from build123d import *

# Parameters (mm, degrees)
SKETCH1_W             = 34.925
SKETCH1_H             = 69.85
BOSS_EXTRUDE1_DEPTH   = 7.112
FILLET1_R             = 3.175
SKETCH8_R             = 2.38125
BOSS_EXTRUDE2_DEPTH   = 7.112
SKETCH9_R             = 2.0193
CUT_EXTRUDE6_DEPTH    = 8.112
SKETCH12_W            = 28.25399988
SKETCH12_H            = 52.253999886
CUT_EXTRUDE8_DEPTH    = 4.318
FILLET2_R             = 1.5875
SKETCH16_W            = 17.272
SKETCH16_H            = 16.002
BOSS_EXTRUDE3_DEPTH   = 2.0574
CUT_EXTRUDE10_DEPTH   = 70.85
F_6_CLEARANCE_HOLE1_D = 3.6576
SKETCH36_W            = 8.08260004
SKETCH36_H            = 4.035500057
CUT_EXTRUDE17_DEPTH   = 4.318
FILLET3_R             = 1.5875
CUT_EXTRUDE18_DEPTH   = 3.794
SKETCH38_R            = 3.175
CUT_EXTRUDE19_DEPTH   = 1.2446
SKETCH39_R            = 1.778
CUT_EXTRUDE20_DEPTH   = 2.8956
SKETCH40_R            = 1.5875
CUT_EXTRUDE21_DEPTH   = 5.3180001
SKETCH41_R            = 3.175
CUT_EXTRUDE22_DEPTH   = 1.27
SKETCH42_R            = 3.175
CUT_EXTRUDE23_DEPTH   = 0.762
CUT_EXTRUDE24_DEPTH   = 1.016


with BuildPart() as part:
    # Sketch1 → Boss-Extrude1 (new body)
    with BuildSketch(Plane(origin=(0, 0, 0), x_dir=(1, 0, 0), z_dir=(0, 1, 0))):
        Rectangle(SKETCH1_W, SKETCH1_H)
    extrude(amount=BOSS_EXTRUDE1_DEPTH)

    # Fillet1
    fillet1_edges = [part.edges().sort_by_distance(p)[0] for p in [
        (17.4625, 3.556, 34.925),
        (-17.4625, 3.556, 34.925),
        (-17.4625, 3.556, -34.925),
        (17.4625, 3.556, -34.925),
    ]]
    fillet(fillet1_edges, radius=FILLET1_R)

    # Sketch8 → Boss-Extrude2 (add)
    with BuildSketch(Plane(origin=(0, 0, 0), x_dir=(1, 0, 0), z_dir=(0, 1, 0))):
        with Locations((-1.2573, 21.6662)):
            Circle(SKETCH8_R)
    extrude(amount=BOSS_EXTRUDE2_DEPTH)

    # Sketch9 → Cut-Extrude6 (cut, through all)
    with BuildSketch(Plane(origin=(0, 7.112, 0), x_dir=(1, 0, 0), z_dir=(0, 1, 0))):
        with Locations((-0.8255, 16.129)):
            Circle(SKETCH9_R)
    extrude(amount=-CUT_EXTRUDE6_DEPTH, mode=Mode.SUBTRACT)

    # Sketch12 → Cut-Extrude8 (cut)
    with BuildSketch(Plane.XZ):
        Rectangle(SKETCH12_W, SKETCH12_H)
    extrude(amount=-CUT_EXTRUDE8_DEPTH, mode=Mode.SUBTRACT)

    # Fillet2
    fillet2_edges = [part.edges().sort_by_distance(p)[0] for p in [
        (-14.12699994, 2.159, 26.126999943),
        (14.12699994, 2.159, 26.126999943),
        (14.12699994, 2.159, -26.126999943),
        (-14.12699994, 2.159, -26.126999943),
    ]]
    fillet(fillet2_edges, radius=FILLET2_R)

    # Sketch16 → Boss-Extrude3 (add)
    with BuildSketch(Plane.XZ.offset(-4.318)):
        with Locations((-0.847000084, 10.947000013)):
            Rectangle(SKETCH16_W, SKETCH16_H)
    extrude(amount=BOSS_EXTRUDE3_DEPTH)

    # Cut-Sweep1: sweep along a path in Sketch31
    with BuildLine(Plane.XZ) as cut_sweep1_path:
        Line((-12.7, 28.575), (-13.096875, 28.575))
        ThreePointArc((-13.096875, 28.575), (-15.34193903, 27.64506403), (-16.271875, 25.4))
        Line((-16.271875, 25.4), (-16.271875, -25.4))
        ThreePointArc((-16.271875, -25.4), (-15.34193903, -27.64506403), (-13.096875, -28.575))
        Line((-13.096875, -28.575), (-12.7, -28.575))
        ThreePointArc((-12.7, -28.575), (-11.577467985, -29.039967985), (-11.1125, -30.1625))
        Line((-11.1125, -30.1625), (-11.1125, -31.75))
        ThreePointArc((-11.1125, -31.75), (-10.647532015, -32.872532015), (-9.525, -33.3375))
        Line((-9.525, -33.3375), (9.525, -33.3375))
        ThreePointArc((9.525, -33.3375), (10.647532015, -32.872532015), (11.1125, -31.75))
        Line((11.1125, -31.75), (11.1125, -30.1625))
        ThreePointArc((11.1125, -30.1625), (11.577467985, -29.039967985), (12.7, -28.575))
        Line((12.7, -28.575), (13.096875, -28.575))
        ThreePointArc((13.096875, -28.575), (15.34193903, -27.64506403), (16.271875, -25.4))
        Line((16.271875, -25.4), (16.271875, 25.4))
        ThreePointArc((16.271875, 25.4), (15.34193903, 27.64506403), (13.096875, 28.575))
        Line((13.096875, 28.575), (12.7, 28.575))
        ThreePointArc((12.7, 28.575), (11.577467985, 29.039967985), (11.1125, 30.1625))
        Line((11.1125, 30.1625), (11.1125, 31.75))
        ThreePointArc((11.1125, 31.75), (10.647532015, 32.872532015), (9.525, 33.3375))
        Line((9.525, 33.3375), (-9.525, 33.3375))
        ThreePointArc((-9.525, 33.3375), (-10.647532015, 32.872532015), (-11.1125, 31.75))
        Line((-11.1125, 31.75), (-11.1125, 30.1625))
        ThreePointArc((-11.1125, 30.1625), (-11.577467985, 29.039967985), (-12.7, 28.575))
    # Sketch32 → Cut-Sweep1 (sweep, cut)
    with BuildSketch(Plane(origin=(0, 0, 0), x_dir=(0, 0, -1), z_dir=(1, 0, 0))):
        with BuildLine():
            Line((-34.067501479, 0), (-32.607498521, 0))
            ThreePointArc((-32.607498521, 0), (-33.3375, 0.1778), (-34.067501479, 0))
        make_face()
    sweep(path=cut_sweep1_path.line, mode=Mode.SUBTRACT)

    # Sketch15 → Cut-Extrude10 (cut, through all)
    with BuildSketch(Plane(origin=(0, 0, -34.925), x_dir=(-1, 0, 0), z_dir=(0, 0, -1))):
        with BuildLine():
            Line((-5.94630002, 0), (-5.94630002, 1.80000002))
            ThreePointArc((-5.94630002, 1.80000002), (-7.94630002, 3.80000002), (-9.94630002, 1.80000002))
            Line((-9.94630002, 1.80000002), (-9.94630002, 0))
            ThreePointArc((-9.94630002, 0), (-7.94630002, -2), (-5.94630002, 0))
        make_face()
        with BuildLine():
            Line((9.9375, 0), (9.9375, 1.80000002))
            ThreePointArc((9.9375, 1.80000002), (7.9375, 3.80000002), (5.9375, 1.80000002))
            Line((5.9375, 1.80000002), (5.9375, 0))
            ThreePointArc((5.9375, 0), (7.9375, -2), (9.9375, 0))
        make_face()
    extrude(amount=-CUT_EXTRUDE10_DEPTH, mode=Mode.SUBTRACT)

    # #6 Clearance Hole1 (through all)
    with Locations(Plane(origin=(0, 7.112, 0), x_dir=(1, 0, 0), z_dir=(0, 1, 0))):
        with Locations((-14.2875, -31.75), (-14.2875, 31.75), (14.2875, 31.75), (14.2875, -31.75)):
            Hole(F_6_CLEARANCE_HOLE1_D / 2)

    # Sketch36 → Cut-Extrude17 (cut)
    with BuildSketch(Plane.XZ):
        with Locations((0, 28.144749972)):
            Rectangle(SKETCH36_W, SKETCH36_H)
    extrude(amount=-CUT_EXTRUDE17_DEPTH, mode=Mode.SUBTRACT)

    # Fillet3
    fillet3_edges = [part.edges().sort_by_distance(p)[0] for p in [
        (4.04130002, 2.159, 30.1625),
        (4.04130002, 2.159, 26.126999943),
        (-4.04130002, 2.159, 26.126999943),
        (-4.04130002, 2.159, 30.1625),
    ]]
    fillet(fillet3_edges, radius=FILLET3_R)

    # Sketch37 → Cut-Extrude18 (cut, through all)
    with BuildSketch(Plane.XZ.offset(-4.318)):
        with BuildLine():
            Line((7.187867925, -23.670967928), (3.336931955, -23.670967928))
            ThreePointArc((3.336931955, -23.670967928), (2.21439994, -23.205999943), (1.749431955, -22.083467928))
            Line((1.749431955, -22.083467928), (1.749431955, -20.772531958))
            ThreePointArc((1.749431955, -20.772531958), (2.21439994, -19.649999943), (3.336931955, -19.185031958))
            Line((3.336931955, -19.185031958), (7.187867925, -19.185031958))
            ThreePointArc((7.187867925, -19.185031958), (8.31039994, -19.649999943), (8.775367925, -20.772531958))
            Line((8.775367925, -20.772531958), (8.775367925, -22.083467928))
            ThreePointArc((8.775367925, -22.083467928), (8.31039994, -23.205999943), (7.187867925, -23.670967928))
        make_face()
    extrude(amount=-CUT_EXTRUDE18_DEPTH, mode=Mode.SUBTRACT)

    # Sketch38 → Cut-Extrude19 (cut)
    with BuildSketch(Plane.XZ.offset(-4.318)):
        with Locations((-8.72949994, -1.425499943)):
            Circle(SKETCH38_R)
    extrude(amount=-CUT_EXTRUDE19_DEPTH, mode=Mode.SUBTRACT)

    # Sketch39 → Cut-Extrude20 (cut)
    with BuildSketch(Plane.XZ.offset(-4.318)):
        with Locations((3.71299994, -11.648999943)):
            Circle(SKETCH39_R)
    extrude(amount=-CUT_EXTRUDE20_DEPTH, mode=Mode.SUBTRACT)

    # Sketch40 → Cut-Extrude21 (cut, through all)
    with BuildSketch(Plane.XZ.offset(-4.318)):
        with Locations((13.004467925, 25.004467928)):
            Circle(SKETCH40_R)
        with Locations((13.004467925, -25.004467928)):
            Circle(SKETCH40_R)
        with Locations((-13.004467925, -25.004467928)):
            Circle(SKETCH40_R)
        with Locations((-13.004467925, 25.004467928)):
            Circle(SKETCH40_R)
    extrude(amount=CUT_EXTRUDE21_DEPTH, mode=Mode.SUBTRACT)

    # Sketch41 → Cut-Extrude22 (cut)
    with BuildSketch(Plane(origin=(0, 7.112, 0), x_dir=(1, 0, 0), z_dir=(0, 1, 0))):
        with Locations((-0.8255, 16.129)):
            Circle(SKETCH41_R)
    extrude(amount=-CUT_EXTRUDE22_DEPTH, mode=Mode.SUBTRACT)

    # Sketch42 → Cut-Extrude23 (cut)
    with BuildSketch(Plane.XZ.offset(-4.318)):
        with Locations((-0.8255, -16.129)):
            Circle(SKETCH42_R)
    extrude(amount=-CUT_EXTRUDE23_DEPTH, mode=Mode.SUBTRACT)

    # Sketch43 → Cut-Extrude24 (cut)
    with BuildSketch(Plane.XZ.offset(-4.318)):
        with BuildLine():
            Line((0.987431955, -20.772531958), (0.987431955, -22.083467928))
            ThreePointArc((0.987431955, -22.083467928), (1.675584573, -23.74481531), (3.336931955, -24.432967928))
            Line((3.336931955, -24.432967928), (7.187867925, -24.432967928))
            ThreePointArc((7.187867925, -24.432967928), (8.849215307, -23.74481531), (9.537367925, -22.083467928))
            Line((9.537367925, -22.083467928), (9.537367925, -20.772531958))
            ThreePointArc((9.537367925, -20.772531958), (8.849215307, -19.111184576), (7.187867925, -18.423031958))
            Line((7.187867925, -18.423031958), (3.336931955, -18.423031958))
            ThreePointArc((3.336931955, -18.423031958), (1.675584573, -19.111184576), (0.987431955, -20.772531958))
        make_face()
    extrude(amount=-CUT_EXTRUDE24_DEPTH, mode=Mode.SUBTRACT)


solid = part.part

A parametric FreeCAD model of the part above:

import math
import FreeCAD as App
import Part
import Sketcher

V = App.Vector
Q = App.Units.Quantity


def edges_at(feature, points):
    """Names of the edges that pass closest to the given points."""
    edges = feature.Shape.Edges
    near = lambda p: min(range(len(edges)), key=lambda i: edges[i].distToShape(Part.Vertex(*p))[0])
    return sorted({f"Edge{near(p) + 1}" for p in points})

doc = App.newDocument("Part")
params = doc.addObject("Spreadsheet::Sheet", "Params")
for row, (alias, value) in enumerate([
    ("sketch1_height", "2.75 in"),
    ("sketch1_width", "1.375 in"),
    ("pad1_length", "0.28 in"),
    ("fillet_radius", "0.125 in"),
    ("sketch2_diameter", "0.1875 in"),
    ("pad2_length", "0.28 in"),
    ("sketch3_diameter", "0.159 in"),
    ("pocket2_length", "0.17 in"),
    ("fillet2_radius", "0.0625 in"),
    ("sketch5_width", "0.68 in"),
    ("sketch5_height", "0.63 in"),
    ("pad3_length", "0.081 in"),
    ("sketch6_radius", "0.0625 in"),
    ("sketch7_height", "2 in"),
    ("sketch7_radius", "0.125 in"),
    ("sketch7_radius2", "0.0625 in"),
    ("sketch7_width", "0.015625 in"),
    ("sketch7_height2", "0.0625 in"),
    ("sketch9_diameter", "0.144 in"),
    ("hole_diameter", "0.144 in"),
    ("pocket4_length", "0.17 in"),
    ("fillet3_radius", "0.0625 in"),
    ("sketch11_radius", "0.0625 in"),
    ("sketch12_diameter", "0.25 in"),
    ("pocket6_length", "0.049 in"),
    ("sketch13_diameter", "0.14 in"),
    ("pocket7_length", "0.114 in"),
    ("sketch14_diameter", "0.125 in"),
    ("sketch15_diameter", "0.25 in"),
    ("pocket9_length", "0.05 in"),
    ("sketch16_diameter", "0.25 in"),
    ("pocket10_length", "0.03 in"),
    ("pocket11_length", "0.04 in"),
], start=1):
    params.set(f"A{row}", alias)
    params.set(f"B{row}", "=" + value)
    params.setAlias(f"B{row}", alias)

body = doc.addObject("PartDesign::Body", "Body")

sketch1 = body.newObject("Sketcher::SketchObject", "Sketch")
sketch1.AttachmentSupport = (doc.getObject("XZ_Plane"), [""])
sketch1.MapMode = "FlatFace"
sketch1.addGeometry([
    Part.LineSegment(V(-17.4625, -34.925, 0), V(-17.4625, 34.925, 0)),
    Part.LineSegment(V(-17.4625, 34.925, 0), V(17.4625, 34.925, 0)),
    Part.LineSegment(V(17.4625, 34.925, 0), V(17.4625, -34.925, 0)),
    Part.LineSegment(V(17.4625, -34.925, 0), V(-17.4625, -34.925, 0)),
], False)
sketch1.addConstraint([
    Sketcher.Constraint("Coincident", 0, 2, 1, 1),
    Sketcher.Constraint("Coincident", 1, 2, 2, 1),
    Sketcher.Constraint("Coincident", 2, 2, 3, 1),
    Sketcher.Constraint("Coincident", 3, 2, 0, 1),
    Sketcher.Constraint("Vertical", 0),
    Sketcher.Constraint("Horizontal", 1),
    Sketcher.Constraint("Vertical", 2),
    Sketcher.Constraint("Horizontal", 3),
    Sketcher.Constraint("Symmetric", 0, 2, 2, 2, -1, 1),
    Sketcher.Constraint("DistanceY", 0, 1, 0, 2, Q("2.75 in")),
    Sketcher.Constraint("DistanceX", 1, 1, 1, 2, Q("1.375 in")),
])
sketch1.setExpression("Constraints[9]", "Params.sketch1_height")
sketch1.setExpression("Constraints[10]", "Params.sketch1_width")
pad1 = body.newObject("PartDesign::Pad", "Pad")
pad1.Profile = sketch1
pad1.setExpression("Length", "Params.pad1_length")
pad1.Reversed = True
doc.recompute()

fillet = body.newObject("PartDesign::Fillet", "Fillet")
fillet.Base = (pad1, edges_at(pad1, [
    (17.462, 3.556, 34.925),
    (-17.462, 3.556, 34.925),
    (-17.462, 3.556, -34.925),
    (17.462, 3.556, -34.925),
]))
fillet.setExpression("Radius", "Params.fillet_radius")

sketch2 = body.newObject("Sketcher::SketchObject", "Sketch001")
sketch2.AttachmentSupport = (doc.getObject("XZ_Plane"), [""])
sketch2.MapMode = "FlatFace"
sketch2.addGeometry(Part.Circle(V(-1.2573, -21.6662, 0), V(0, 0, 1), 2.38125), False)
sketch2.addConstraint([
    Sketcher.Constraint("Diameter", 0, Q("0.1875 in")),
    Sketcher.Constraint("DistanceY", 0, 3, -1, 1, Q("0.853 in")),
    Sketcher.Constraint("DistanceX", 0, 3, -1, 1, Q("0.0495 in")),
])
sketch2.setExpression("Constraints[0]", "Params.sketch2_diameter")
pad2 = body.newObject("PartDesign::Pad", "Pad001")
pad2.Profile = sketch2
pad2.setExpression("Length", "Params.pad2_length")
pad2.Reversed = True

sketch3 = body.newObject("Sketcher::SketchObject", "Sketch002")
sketch3.AttachmentSupport = (doc.getObject("XZ_Plane"), [""])
sketch3.MapMode = "FlatFace"
sketch3.AttachmentOffset = App.Placement(V(0, 0, -0.28 * 25.4), App.Rotation())
sketch3.addGeometry(Part.Circle(V(-0.8255, -16.129, 0), V(0, 0, 1), 2.0193), False)
sketch3.addConstraint([
    Sketcher.Constraint("Diameter", 0, Q("0.159 in")),
    Sketcher.Constraint("DistanceY", 0, 3, -1, 1, Q("0.635 in")),
    Sketcher.Constraint("DistanceX", 0, 3, -1, 1, Q("0.0325 in")),
])
sketch3.setExpression("Constraints[0]", "Params.sketch3_diameter")
pocket1 = body.newObject("PartDesign::Pocket", "Pocket")
pocket1.Profile = sketch3
pocket1.Type = "ThroughAll"
pocket1.Reversed = True

sketch4 = body.newObject("Sketcher::SketchObject", "Sketch003")
sketch4.AttachmentSupport = (doc.getObject("XZ_Plane"), [""])
sketch4.MapMode = "FlatFace"
sketch4.addGeometry([
    Part.LineSegment(V(-14.127, 26.127, 0), V(-14.127, -26.127, 0)),
    Part.LineSegment(V(-14.127, -26.127, 0), V(14.127, -26.127, 0)),
    Part.LineSegment(V(14.127, -26.127, 0), V(14.127, 26.127, 0)),
    Part.LineSegment(V(14.127, 26.127, 0), V(-14.127, 26.127, 0)),
], False)
sketch4.addConstraint([
    Sketcher.Constraint("Coincident", 0, 2, 1, 1),
    Sketcher.Constraint("Coincident", 1, 2, 2, 1),
    Sketcher.Constraint("Coincident", 2, 2, 3, 1),
    Sketcher.Constraint("Coincident", 3, 2, 0, 1),
    Sketcher.Constraint("Vertical", 0),
    Sketcher.Constraint("Horizontal", 1),
    Sketcher.Constraint("Vertical", 2),
    Sketcher.Constraint("Horizontal", 3),
    Sketcher.Constraint("Symmetric", 0, 2, 2, 2, -1, 1),
    Sketcher.Constraint("DistanceX", 1, 1, 1, 2, Q("28.254 mm")),
    Sketcher.Constraint("DistanceY", 0, 2, 0, 1, Q("52.254 mm")),
])
pocket2 = body.newObject("PartDesign::Pocket", "Pocket001")
pocket2.Profile = sketch4
pocket2.setExpression("Length", "Params.pocket2_length")
doc.recompute()

fillet2 = body.newObject("PartDesign::Fillet", "Fillet001")
fillet2.Base = (pocket2, edges_at(pocket2, [
    (-14.127, 2.159, 26.127),
    (14.127, 2.159, 26.127),
    (14.127, 2.159, -26.127),
    (-14.127, 2.159, -26.127),
]))
fillet2.setExpression("Radius", "Params.fillet2_radius")

sketch5 = body.newObject("Sketcher::SketchObject", "Sketch004")
sketch5.AttachmentSupport = (doc.getObject("XZ_Plane"), [""])
sketch5.MapMode = "FlatFace"
sketch5.AttachmentOffset = App.Placement(V(0, 0, -0.17 * 25.4), App.Rotation())
sketch5.addGeometry([
    Part.LineSegment(V(-9.483, 18.948, 0), V(-9.483, 2.946, 0)),
    Part.LineSegment(V(-9.483, 2.946, 0), V(7.789, 2.946, 0)),
    Part.LineSegment(V(7.789, 2.946, 0), V(7.789, 18.948, 0)),
    Part.LineSegment(V(7.789, 18.948, 0), V(-9.483, 18.948, 0)),
], False)
sketch5.addConstraint([
    Sketcher.Constraint("Coincident", 0, 2, 1, 1),
    Sketcher.Constraint("Coincident", 1, 2, 2, 1),
    Sketcher.Constraint("Coincident", 2, 2, 3, 1),
    Sketcher.Constraint("Coincident", 3, 2, 0, 1),
    Sketcher.Constraint("Vertical", 0),
    Sketcher.Constraint("Horizontal", 1),
    Sketcher.Constraint("Vertical", 2),
    Sketcher.Constraint("Horizontal", 3),
    Sketcher.Constraint("DistanceX", 1, 1, 1, 2, Q("0.68 in")),
    Sketcher.Constraint("DistanceY", 0, 2, 0, 1, Q("0.63 in")),
    Sketcher.Constraint("DistanceX", 0, 2, -1, 1, Q("9.483 mm")),
    Sketcher.Constraint("DistanceY", -1, 1, 0, 2, Q("2.946 mm")),
])
sketch5.setExpression("Constraints[8]", "Params.sketch5_width")
sketch5.setExpression("Constraints[9]", "Params.sketch5_height")
pad3 = body.newObject("PartDesign::Pad", "Pad002")
pad3.Profile = sketch5
pad3.setExpression("Length", "Params.pad3_length")

sketch6 = body.newObject("Sketcher::SketchObject", "Sketch005")
sketch6.AttachmentSupport = (doc.getObject("YZ_Plane"), [""])
sketch6.MapMode = "FlatFace"
sketch6.addGeometry([
    Part.LineSegment(V(0, 34.067501, 0), V(0, 32.607499, 0)),
    Part.ArcOfCircle(Part.Circle(V(-1.4097, 33.3375, 0), V(0, 0, 1), 1.5875), math.radians(-27.377006), math.radians(27.377006)),
], False)
sketch6.addConstraint([
    Sketcher.Constraint("Coincident", 0, 1, 1, 2),
    Sketcher.Constraint("Coincident", 1, 1, 0, 2),
    Sketcher.Constraint("Vertical", 0),
    Sketcher.Constraint("PointOnObject", 0, 1, -2),
    Sketcher.Constraint("Radius", 1, Q("0.0625 in")),
    Sketcher.Constraint("DistanceY", -1, 1, 1, 3, Q("1.3125 in")),
    Sketcher.Constraint("DistanceX", 1, 3, -1, 1, Q("0.0555 in")),
])
sketch6.setExpression("Constraints[4]", "Params.sketch6_radius")

sketch7 = body.newObject("Sketcher::SketchObject", "Sketch006")
sketch7.AttachmentSupport = (doc.getObject("XZ_Plane"), [""])
sketch7.MapMode = "FlatFace"
sketch7.addGeometry([
    Part.LineSegment(V(-12.7, 28.575, 0), V(-13.096875, 28.575, 0)),
    Part.ArcOfCircle(Part.Circle(V(-13.096875, 25.4, 0), V(0, 0, 1), 3.175), math.radians(90), math.radians(180)),
    Part.LineSegment(V(-16.271875, 25.4, 0), V(-16.271875, -25.4, 0)),
    Part.ArcOfCircle(Part.Circle(V(-13.096875, -25.4, 0), V(0, 0, 1), 3.175), math.radians(-180), math.radians(-90)),
    Part.LineSegment(V(-13.096875, -28.575, 0), V(-12.7, -28.575, 0)),
    Part.ArcOfCircle(Part.Circle(V(-12.7, -30.1625, 0), V(0, 0, 1), 1.5875), math.radians(0), math.radians(90)),
    Part.LineSegment(V(-11.1125, -30.1625, 0), V(-11.1125, -31.75, 0)),
    Part.ArcOfCircle(Part.Circle(V(-9.525, -31.75, 0), V(0, 0, 1), 1.5875), math.radians(180), math.radians(270)),
    Part.LineSegment(V(-9.525, -33.3375, 0), V(9.525, -33.3375, 0)),
    Part.ArcOfCircle(Part.Circle(V(9.525, -31.75, 0), V(0, 0, 1), 1.5875), math.radians(-90), math.radians(0)),
    Part.LineSegment(V(11.1125, -31.75, 0), V(11.1125, -30.1625, 0)),
    Part.ArcOfCircle(Part.Circle(V(12.7, -30.1625, 0), V(0, 0, 1), 1.5875), math.radians(90), math.radians(180)),
    Part.LineSegment(V(12.7, -28.575, 0), V(13.096875, -28.575, 0)),
    Part.ArcOfCircle(Part.Circle(V(13.096875, -25.4, 0), V(0, 0, 1), 3.175), math.radians(-90), math.radians(0)),
    Part.LineSegment(V(16.271875, -25.4, 0), V(16.271875, 25.4, 0)),
    Part.ArcOfCircle(Part.Circle(V(13.096875, 25.4, 0), V(0, 0, 1), 3.175), math.radians(0), math.radians(90)),
    Part.LineSegment(V(13.096875, 28.575, 0), V(12.7, 28.575, 0)),
    Part.ArcOfCircle(Part.Circle(V(12.7, 30.1625, 0), V(0, 0, 1), 1.5875), math.radians(180), math.radians(270)),
    Part.LineSegment(V(11.1125, 30.1625, 0), V(11.1125, 31.75, 0)),
    Part.ArcOfCircle(Part.Circle(V(9.525, 31.75, 0), V(0, 0, 1), 1.5875), math.radians(0), math.radians(90)),
    Part.LineSegment(V(9.525, 33.3375, 0), V(-9.525, 33.3375, 0)),
    Part.ArcOfCircle(Part.Circle(V(-9.525, 31.75, 0), V(0, 0, 1), 1.5875), math.radians(90), math.radians(180)),
    Part.LineSegment(V(-11.1125, 31.75, 0), V(-11.1125, 30.1625, 0)),
    Part.ArcOfCircle(Part.Circle(V(-12.7, 30.1625, 0), V(0, 0, 1), 1.5875), math.radians(-90), math.radians(0)),
], False)
sketch7.addConstraint([
    Sketcher.Constraint("Tangent", 0, 2, 1, 1),
    Sketcher.Constraint("Tangent", 1, 2, 2, 1),
    Sketcher.Constraint("Tangent", 2, 2, 3, 1),
    Sketcher.Constraint("Tangent", 3, 2, 4, 1),
    Sketcher.Constraint("Tangent", 4, 2, 5, 2),
    Sketcher.Constraint("Tangent", 5, 1, 6, 1),
    Sketcher.Constraint("Tangent", 6, 2, 7, 1),
    Sketcher.Constraint("Tangent", 7, 2, 8, 1),
    Sketcher.Constraint("Tangent", 8, 2, 9, 1),
    Sketcher.Constraint("Tangent", 9, 2, 10, 1),
    Sketcher.Constraint("Tangent", 10, 2, 11, 2),
    Sketcher.Constraint("Tangent", 11, 1, 12, 1),
    Sketcher.Constraint("Tangent", 12, 2, 13, 1),
    Sketcher.Constraint("Tangent", 13, 2, 14, 1),
    Sketcher.Constraint("Tangent", 14, 2, 15, 1),
    Sketcher.Constraint("Tangent", 15, 2, 16, 1),
    Sketcher.Constraint("Tangent", 16, 2, 17, 2),
    Sketcher.Constraint("Tangent", 17, 1, 18, 1),
    Sketcher.Constraint("Tangent", 18, 2, 19, 1),
    Sketcher.Constraint("Tangent", 19, 2, 20, 1),
    Sketcher.Constraint("Tangent", 20, 2, 21, 1),
    Sketcher.Constraint("Tangent", 21, 2, 22, 1),
    Sketcher.Constraint("Tangent", 22, 2, 23, 2),
    Sketcher.Constraint("Tangent", 23, 1, 0, 1),
    Sketcher.Constraint("Horizontal", 0),
    Sketcher.Constraint("Vertical", 2),
    Sketcher.Constraint("Horizontal", 4),
    Sketcher.Constraint("Vertical", 6),
    Sketcher.Constraint("Horizontal", 8),
    Sketcher.Constraint("Vertical", 10),
    Sketcher.Constraint("Horizontal", 12),
    Sketcher.Constraint("Vertical", 14),
    Sketcher.Constraint("Horizontal", 16),
    Sketcher.Constraint("Vertical", 18),
    Sketcher.Constraint("Horizontal", 20),
    Sketcher.Constraint("Vertical", 22),
    Sketcher.Constraint("Equal", 1, 3),
    Sketcher.Constraint("Equal", 5, 7),
    Sketcher.Constraint("Equal", 7, 9),
    Sketcher.Constraint("Equal", 9, 11),
    Sketcher.Constraint("Equal", 3, 13),
    Sketcher.Constraint("Equal", 13, 15),
    Sketcher.Constraint("Equal", 11, 17),
    Sketcher.Constraint("Equal", 17, 19),
    Sketcher.Constraint("Equal", 19, 21),
    Sketcher.Constraint("Equal", 21, 23),
    Sketcher.Constraint("Symmetric", 1, 3, 13, 3, -1, 1),
    Sketcher.Constraint("Symmetric", 5, 3, 17, 3, -1, 1),
    Sketcher.Constraint("Symmetric", 9, 3, 21, 3, -1, 1),
    Sketcher.Constraint("Symmetric", 5, 3, 11, 3, -2),
    Sketcher.Constraint("DistanceY", 2, 2, 2, 1, Q("2 in")),
    Sketcher.Constraint("Radius", 1, Q("0.125 in")),
    Sketcher.Constraint("Radius", 5, Q("0.0625 in")),
    Sketcher.Constraint("DistanceX", 5, 3, 11, 3, Q("1 in")),
    Sketcher.Constraint("DistanceX", 0, 2, 0, 1, Q("0.015625 in")),
    Sketcher.Constraint("DistanceY", 6, 2, 6, 1, Q("0.0625 in")),
])
sketch7.setExpression("Constraints[50]", "Params.sketch7_height")
sketch7.setExpression("Constraints[51]", "Params.sketch7_radius")
sketch7.setExpression("Constraints[52]", "Params.sketch7_radius2")
sketch7.setExpression("Constraints[54]", "Params.sketch7_width")
sketch7.setExpression("Constraints[55]", "Params.sketch7_height2")
doc.recompute()

subtractivepipe = body.newObject("PartDesign::SubtractivePipe", "SubtractivePipe")
subtractivepipe.Profile = sketch6
subtractivepipe.Spine = (sketch7, ["Edge1", "Edge2", "Edge3", "Edge4", "Edge5", "Edge6", "Edge7", "Edge8", "Edge9", "Edge10", "Edge11", "Edge12", "Edge13", "Edge14", "Edge15", "Edge16", "Edge17", "Edge18", "Edge19", "Edge20", "Edge21", "Edge22", "Edge23", "Edge24"])

sketch8 = body.newObject("Sketcher::SketchObject", "Sketch007")
sketch8.AttachmentSupport = (doc.getObject("XY_Plane"), [""])
sketch8.MapMode = "FlatFace"
sketch8.AttachmentOffset = App.Placement(V(0, 0, -1.375 * 25.4), App.Rotation())
sketch8.addGeometry([
    Part.LineSegment(V(5.9463, 0, 0), V(5.9463, 1.8, 0)),
    Part.ArcOfCircle(Part.Circle(V(7.9463, 1.8, 0), V(0, 0, 1), 2), math.radians(0), math.radians(180)),
    Part.LineSegment(V(9.9463, 1.8, 0), V(9.9463, 0, 0)),
    Part.ArcOfCircle(Part.Circle(V(7.9463, 0, 0), V(0, 0, 1), 2), math.radians(180), math.radians(360)),
    Part.LineSegment(V(-9.9375, 0, 0), V(-9.9375, 1.8, 0)),
    Part.ArcOfCircle(Part.Circle(V(-7.9375, 1.8, 0), V(0, 0, 1), 2), math.radians(0), math.radians(180)),
    Part.LineSegment(V(-5.9375, 1.8, 0), V(-5.9375, 0, 0)),
    Part.ArcOfCircle(Part.Circle(V(-7.9375, 0, 0), V(0, 0, 1), 2), math.radians(180), math.radians(360)),
], False)
sketch8.addConstraint([
    Sketcher.Constraint("Tangent", 0, 2, 1, 2),
    Sketcher.Constraint("Tangent", 1, 1, 2, 1),
    Sketcher.Constraint("Tangent", 2, 2, 3, 2),
    Sketcher.Constraint("Tangent", 3, 1, 0, 1),
    Sketcher.Constraint("Tangent", 4, 2, 5, 2),
    Sketcher.Constraint("Tangent", 5, 1, 6, 1),
    Sketcher.Constraint("Tangent", 6, 2, 7, 2),
    Sketcher.Constraint("Tangent", 7, 1, 4, 1),
    Sketcher.Constraint("Vertical", 0),
    Sketcher.Constraint("Vertical", 2),
    Sketcher.Constraint("Vertical", 4),
    Sketcher.Constraint("Vertical", 6),
    Sketcher.Constraint("Equal", 3, 5),
    Sketcher.Constraint("PointOnObject", 3, 3, -1),
    Sketcher.Constraint("PointOnObject", 7, 3, -1),
    Sketcher.Constraint("Horizontal", 1, 3, 5, 3),
    Sketcher.Constraint("Radius", 1, Q("2 mm")),
    Sketcher.Constraint("DistanceX", 5, 3, -1, 1, Q("0.3125 in")),
    Sketcher.Constraint("DistanceY", 0, 1, 0, 2, Q("1.8 mm")),
    Sketcher.Constraint("DistanceX", -1, 1, 1, 3, Q("7.9463 mm")),
])
pocket3 = body.newObject("PartDesign::Pocket", "Pocket002")
pocket3.Profile = sketch8
pocket3.Type = "ThroughAll"
pocket3.Reversed = True

sketch9 = body.newObject("Sketcher::SketchObject", "Sketch008")
sketch9.AttachmentSupport = (doc.getObject("XZ_Plane"), [""])
sketch9.MapMode = "FlatFace"
sketch9.AttachmentOffset = App.Placement(V(0, 0, -0.28 * 25.4), App.Rotation())
sketch9.addGeometry([
    Part.Circle(V(-14.2875, 31.75, 0), V(0, 0, 1), 1.8288),
    Part.Circle(V(-14.2875, -31.75, 0), V(0, 0, 1), 1.8288),
    Part.Circle(V(14.2875, -31.75, 0), V(0, 0, 1), 1.8288),
    Part.Circle(V(14.2875, 31.75, 0), V(0, 0, 1), 1.8288),
], False)
sketch9.addConstraint([
    Sketcher.Constraint("Equal", 0, 1),
    Sketcher.Constraint("Equal", 1, 2),
    Sketcher.Constraint("Equal", 2, 3),
    Sketcher.Constraint("Symmetric", 0, 3, 2, 3, -1, 1),
    Sketcher.Constraint("Symmetric", 1, 3, 3, 3, -1, 1),
    Sketcher.Constraint("Symmetric", 1, 3, 2, 3, -2),
    Sketcher.Constraint("Diameter", 0, Q("0.144 in")),
    Sketcher.Constraint("DistanceY", 1, 3, 0, 3, Q("2.5 in")),
    Sketcher.Constraint("DistanceX", 0, 3, -1, 1, Q("0.5625 in")),
])
sketch9.setExpression("Constraints[6]", "Params.sketch9_diameter")
doc.recompute()
hole = body.newObject("PartDesign::Hole", "Hole")
hole.Profile = sketch9
hole.ThreadType = "None"
hole.setExpression("Diameter", "Params.hole_diameter")
hole.DepthType = "ThroughAll"
hole.Reversed = True

sketch10 = body.newObject("Sketcher::SketchObject", "Sketch009")
sketch10.AttachmentSupport = (doc.getObject("XZ_Plane"), [""])
sketch10.MapMode = "FlatFace"
sketch10.addGeometry([
    Part.LineSegment(V(-4.0413, 30.1625, 0), V(-4.0413, 26.127, 0)),
    Part.LineSegment(V(-4.0413, 26.127, 0), V(4.0413, 26.127, 0)),
    Part.LineSegment(V(4.0413, 26.127, 0), V(4.0413, 30.1625, 0)),
    Part.LineSegment(V(4.0413, 30.1625, 0), V(-4.0413, 30.1625, 0)),
], False)
sketch10.addConstraint([
    Sketcher.Constraint("Coincident", 0, 2, 1, 1),
    Sketcher.Constraint("Coincident", 1, 2, 2, 1),
    Sketcher.Constraint("Coincident", 2, 2, 3, 1),
    Sketcher.Constraint("Coincident", 3, 2, 0, 1),
    Sketcher.Constraint("Vertical", 0),
    Sketcher.Constraint("Horizontal", 1),
    Sketcher.Constraint("Vertical", 2),
    Sketcher.Constraint("Horizontal", 3),
    Sketcher.Constraint("DistanceY", -1, 1, 2, 2, Q("1.1875 in")),
    Sketcher.Constraint("DistanceX", 1, 1, 1, 2, Q("8.0826 mm")),
    Sketcher.Constraint("DistanceY", 0, 2, 0, 1, Q("4.0355 mm")),
    Sketcher.Constraint("DistanceX", 0, 2, -1, 1, Q("4.0413 mm")),
])
pocket4 = body.newObject("PartDesign::Pocket", "Pocket003")
pocket4.Profile = sketch10
pocket4.setExpression("Length", "Params.pocket4_length")
doc.recompute()

fillet3 = body.newObject("PartDesign::Fillet", "Fillet002")
fillet3.Base = (pocket4, edges_at(pocket4, [
    (4.041, 2.159, 30.163),
    (4.041, 2.159, 26.127),
    (-4.041, 2.159, 26.127),
    (-4.041, 2.159, 30.163),
]))
fillet3.setExpression("Radius", "Params.fillet3_radius")

sketch11 = body.newObject("Sketcher::SketchObject", "Sketch010")
sketch11.AttachmentSupport = (doc.getObject("XZ_Plane"), [""])
sketch11.MapMode = "FlatFace"
sketch11.AttachmentOffset = App.Placement(V(0, 0, -0.17 * 25.4), App.Rotation())
sketch11.addGeometry([
    Part.LineSegment(V(3.336932, -23.670968, 0), V(7.187868, -23.670968, 0)),
    Part.ArcOfCircle(Part.Circle(V(7.187868, -22.083468, 0), V(0, 0, 1), 1.5875), math.radians(-90), math.radians(0)),
    Part.LineSegment(V(8.775368, -22.083468, 0), V(8.775368, -20.772532, 0)),
    Part.ArcOfCircle(Part.Circle(V(7.187868, -20.772532, 0), V(0, 0, 1), 1.5875), math.radians(0), math.radians(90)),
    Part.LineSegment(V(7.187868, -19.185032, 0), V(3.336932, -19.185032, 0)),
    Part.ArcOfCircle(Part.Circle(V(3.336932, -20.772532, 0), V(0, 0, 1), 1.5875), math.radians(90), math.radians(180)),
    Part.LineSegment(V(1.749432, -20.772532, 0), V(1.749432, -22.083468, 0)),
    Part.ArcOfCircle(Part.Circle(V(3.336932, -22.083468, 0), V(0, 0, 1), 1.5875), math.radians(180), math.radians(270)),
], False)
sketch11.addConstraint([
    Sketcher.Constraint("Tangent", 0, 2, 1, 1),
    Sketcher.Constraint("Tangent", 1, 2, 2, 1),
    Sketcher.Constraint("Tangent", 2, 2, 3, 1),
    Sketcher.Constraint("Tangent", 3, 2, 4, 1),
    Sketcher.Constraint("Tangent", 4, 2, 5, 1),
    Sketcher.Constraint("Tangent", 5, 2, 6, 1),
    Sketcher.Constraint("Tangent", 6, 2, 7, 1),
    Sketcher.Constraint("Tangent", 7, 2, 0, 1),
    Sketcher.Constraint("Horizontal", 0),
    Sketcher.Constraint("Vertical", 2),
    Sketcher.Constraint("Horizontal", 4),
    Sketcher.Constraint("Vertical", 6),
    Sketcher.Constraint("Equal", 1, 3),
    Sketcher.Constraint("Equal", 3, 5),
    Sketcher.Constraint("Equal", 5, 7),
    Sketcher.Constraint("Radius", 1, Q("0.0625 in")),
    Sketcher.Constraint("DistanceX", 0, 1, 0, 2, Q("3.850936 mm")),
    Sketcher.Constraint("DistanceY", 2, 1, 2, 2, Q("1.310936 mm")),
    Sketcher.Constraint("DistanceY", 3, 3, -1, 1, Q("20.772532 mm")),
    Sketcher.Constraint("DistanceX", -1, 1, 5, 3, Q("3.336932 mm")),
])
sketch11.setExpression("Constraints[15]", "Params.sketch11_radius")
pocket5 = body.newObject("PartDesign::Pocket", "Pocket004")
pocket5.Profile = sketch11
pocket5.Type = "ThroughAll"

sketch12 = body.newObject("Sketcher::SketchObject", "Sketch011")
sketch12.AttachmentSupport = (doc.getObject("XZ_Plane"), [""])
sketch12.MapMode = "FlatFace"
sketch12.AttachmentOffset = App.Placement(V(0, 0, -0.17 * 25.4), App.Rotation())
sketch12.addGeometry(Part.Circle(V(-8.7295, -1.4255, 0), V(0, 0, 1), 3.175), False)
sketch12.addConstraint([
    Sketcher.Constraint("Diameter", 0, Q("0.25 in")),
    Sketcher.Constraint("DistanceX", 0, 3, -1, 1, Q("8.7295 mm")),
    Sketcher.Constraint("DistanceY", 0, 3, -1, 1, Q("1.4255 mm")),
])
sketch12.setExpression("Constraints[0]", "Params.sketch12_diameter")
pocket6 = body.newObject("PartDesign::Pocket", "Pocket005")
pocket6.Profile = sketch12
pocket6.setExpression("Length", "Params.pocket6_length")

sketch13 = body.newObject("Sketcher::SketchObject", "Sketch012")
sketch13.AttachmentSupport = (doc.getObject("XZ_Plane"), [""])
sketch13.MapMode = "FlatFace"
sketch13.AttachmentOffset = App.Placement(V(0, 0, -0.17 * 25.4), App.Rotation())
sketch13.addGeometry(Part.Circle(V(3.713, -11.649, 0), V(0, 0, 1), 1.778), False)
sketch13.addConstraint([
    Sketcher.Constraint("Diameter", 0, Q("0.14 in")),
    Sketcher.Constraint("DistanceX", -1, 1, 0, 3, Q("3.713 mm")),
    Sketcher.Constraint("DistanceY", 0, 3, -1, 1, Q("11.649 mm")),
])
sketch13.setExpression("Constraints[0]", "Params.sketch13_diameter")
pocket7 = body.newObject("PartDesign::Pocket", "Pocket006")
pocket7.Profile = sketch13
pocket7.setExpression("Length", "Params.pocket7_length")

sketch14 = body.newObject("Sketcher::SketchObject", "Sketch013")
sketch14.AttachmentSupport = (doc.getObject("XZ_Plane"), [""])
sketch14.MapMode = "FlatFace"
sketch14.AttachmentOffset = App.Placement(V(0, 0, -0.17 * 25.4), App.Rotation())
sketch14.addGeometry([
    Part.Circle(V(13.004468, 25.004468, 0), V(0, 0, 1), 1.5875),
    Part.Circle(V(13.004468, -25.004468, 0), V(0, 0, 1), 1.5875),
    Part.Circle(V(-13.004468, -25.004468, 0), V(0, 0, 1), 1.5875),
    Part.Circle(V(-13.004468, 25.004468, 0), V(0, 0, 1), 1.5875),
], False)
sketch14.addConstraint([
    Sketcher.Constraint("Equal", 0, 1),
    Sketcher.Constraint("Equal", 1, 2),
    Sketcher.Constraint("Equal", 2, 3),
    Sketcher.Constraint("Symmetric", 0, 3, 2, 3, -1, 1),
    Sketcher.Constraint("Symmetric", 1, 3, 3, 3, -1, 1),
    Sketcher.Constraint("Symmetric", 1, 3, 2, 3, -2),
    Sketcher.Constraint("Diameter", 0, Q("0.125 in")),
    Sketcher.Constraint("DistanceX", -1, 1, 0, 3, Q("13.004468 mm")),
    Sketcher.Constraint("DistanceY", -1, 1, 0, 3, Q("25.004468 mm")),
])
sketch14.setExpression("Constraints[6]", "Params.sketch14_diameter")
pocket8 = body.newObject("PartDesign::Pocket", "Pocket007")
pocket8.Profile = sketch14
pocket8.Type = "ThroughAll"
pocket8.Reversed = True

sketch15 = body.newObject("Sketcher::SketchObject", "Sketch014")
sketch15.AttachmentSupport = (doc.getObject("XZ_Plane"), [""])
sketch15.MapMode = "FlatFace"
sketch15.AttachmentOffset = App.Placement(V(0, 0, -0.28 * 25.4), App.Rotation())
sketch15.addGeometry(Part.Circle(V(-0.8255, -16.129, 0), V(0, 0, 1), 3.175), False)
sketch15.addConstraint([
    Sketcher.Constraint("Diameter", 0, Q("0.25 in")),
    Sketcher.Constraint("DistanceY", 0, 3, -1, 1, Q("0.635 in")),
    Sketcher.Constraint("DistanceX", 0, 3, -1, 1, Q("0.0325 in")),
])
sketch15.setExpression("Constraints[0]", "Params.sketch15_diameter")
pocket9 = body.newObject("PartDesign::Pocket", "Pocket008")
pocket9.Profile = sketch15
pocket9.setExpression("Length", "Params.pocket9_length")
pocket9.Reversed = True

sketch16 = body.newObject("Sketcher::SketchObject", "Sketch015")
sketch16.AttachmentSupport = (doc.getObject("XZ_Plane"), [""])
sketch16.MapMode = "FlatFace"
sketch16.AttachmentOffset = App.Placement(V(0, 0, -0.17 * 25.4), App.Rotation())
sketch16.addGeometry(Part.Circle(V(-0.8255, -16.129, 0), V(0, 0, 1), 3.175), False)
sketch16.addConstraint([
    Sketcher.Constraint("Diameter", 0, Q("0.25 in")),
    Sketcher.Constraint("DistanceY", 0, 3, -1, 1, Q("0.635 in")),
    Sketcher.Constraint("DistanceX", 0, 3, -1, 1, Q("0.0325 in")),
])
sketch16.setExpression("Constraints[0]", "Params.sketch16_diameter")
pocket10 = body.newObject("PartDesign::Pocket", "Pocket009")
pocket10.Profile = sketch16
pocket10.setExpression("Length", "Params.pocket10_length")

sketch17 = body.newObject("Sketcher::SketchObject", "Sketch016")
sketch17.AttachmentSupport = (doc.getObject("XZ_Plane"), [""])
sketch17.MapMode = "FlatFace"
sketch17.AttachmentOffset = App.Placement(V(0, 0, -0.17 * 25.4), App.Rotation())
sketch17.addGeometry([
    Part.LineSegment(V(0.987432, -20.772532, 0), V(0.987432, -22.083468, 0)),
    Part.ArcOfCircle(Part.Circle(V(3.336932, -22.083468, 0), V(0, 0, 1), 2.3495), math.radians(-180), math.radians(-90)),
    Part.LineSegment(V(3.336932, -24.432968, 0), V(7.187868, -24.432968, 0)),
    Part.ArcOfCircle(Part.Circle(V(7.187868, -22.083468, 0), V(0, 0, 1), 2.3495), math.radians(-90), math.radians(0)),
    Part.LineSegment(V(9.537368, -22.083468, 0), V(9.537368, -20.772532, 0)),
    Part.ArcOfCircle(Part.Circle(V(7.187868, -20.772532, 0), V(0, 0, 1), 2.3495), math.radians(0), math.radians(90)),
    Part.LineSegment(V(7.187868, -18.423032, 0), V(3.336932, -18.423032, 0)),
    Part.ArcOfCircle(Part.Circle(V(3.336932, -20.772532, 0), V(0, 0, 1), 2.3495), math.radians(90), math.radians(180)),
], False)
sketch17.addConstraint([
    Sketcher.Constraint("Tangent", 0, 2, 1, 1),
    Sketcher.Constraint("Tangent", 1, 2, 2, 1),
    Sketcher.Constraint("Tangent", 2, 2, 3, 1),
    Sketcher.Constraint("Tangent", 3, 2, 4, 1),
    Sketcher.Constraint("Tangent", 4, 2, 5, 1),
    Sketcher.Constraint("Tangent", 5, 2, 6, 1),
    Sketcher.Constraint("Tangent", 6, 2, 7, 1),
    Sketcher.Constraint("Tangent", 7, 2, 0, 1),
    Sketcher.Constraint("Vertical", 0),
    Sketcher.Constraint("Horizontal", 2),
    Sketcher.Constraint("Vertical", 4),
    Sketcher.Constraint("Horizontal", 6),
    Sketcher.Constraint("Equal", 1, 3),
    Sketcher.Constraint("Equal", 3, 5),
    Sketcher.Constraint("Equal", 5, 7),
    Sketcher.Constraint("Radius", 1, Q("0.0925 in")),
    Sketcher.Constraint("DistanceX", 2, 1, 2, 2, Q("3.850936 mm")),
    Sketcher.Constraint("DistanceY", 0, 2, 0, 1, Q("1.310936 mm")),
    Sketcher.Constraint("DistanceX", -1, 1, 1, 3, Q("3.336932 mm")),
    Sketcher.Constraint("DistanceY", 5, 3, -1, 1, Q("20.772532 mm")),
])
pocket11 = body.newObject("PartDesign::Pocket", "Pocket010")
pocket11.Profile = sketch17
pocket11.setExpression("Length", "Params.pocket11_length")

doc.recompute()
